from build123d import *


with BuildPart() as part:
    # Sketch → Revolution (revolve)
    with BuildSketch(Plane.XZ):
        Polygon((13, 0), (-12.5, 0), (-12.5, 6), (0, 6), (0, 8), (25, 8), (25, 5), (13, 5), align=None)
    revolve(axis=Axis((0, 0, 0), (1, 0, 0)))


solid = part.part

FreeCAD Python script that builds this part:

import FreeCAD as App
import Part
import Sketcher


def add_polygon(sketch, points):
    """Adds a closed chain of lines whose ends are joined by coincident constraints."""
    first, n = sketch.GeometryCount, len(points)
    for a, b in zip(points, points[1:] + points[:1]):
        sketch.addGeometry(Part.LineSegment(App.Vector(*a, 0), App.Vector(*b, 0)), False)
    for i in range(n):
        sketch.addConstraint(Sketcher.Constraint("Coincident", first + i, 2, first + (i + 1) % n, 1))

doc = App.newDocument("Part")
body = doc.addObject("PartDesign::Body", "Body")

# Sketch on XZ plane
sketch1 = doc.addObject("Sketcher::SketchObject", "Sketch")
body.addObject(sketch1)
sketch1.AttachmentSupport = (doc.XZ_Plane, [""])
sketch1.MapMode = "FlatFace"
add_polygon(sketch1, [(-12.5, 0), (13, 0), (13, 5), (25, 5), (25, 8), (0, 8), (0, 6), (-12.5, 6)])  # lines 0-7
sketch1.addConstraint([
    Sketcher.Constraint("Horizontal", 0),
    Sketcher.Constraint("Vertical", 1),
    Sketcher.Constraint("Horizontal", 2),
    Sketcher.Constraint("Vertical", 3),
    Sketcher.Constraint("Horizontal", 4),
    Sketcher.Constraint("Vertical", 5),
    Sketcher.Constraint("Horizontal", 6),
    Sketcher.Constraint("Vertical", 7),
    Sketcher.Constraint("PointOnObject", 0, 2, -1),
    Sketcher.Constraint("PointOnObject", 4, 2, -2),
    Sketcher.Constraint("DistanceX", 2, 1, 2, 2, 12.0),
    Sketcher.Constraint("DistanceX", 4, 2, 4, 1, 25.0),
    Sketcher.Constraint("DistanceY", 1, 1, 1, 2, 5.0),
    Sketcher.Constraint("DistanceY", 3, 1, 3, 2, 3.0),
    Sketcher.Constraint("DistanceY", 5, 2, 5, 1, 2.0),
    Sketcher.Constraint("DistanceX", 0, 1, 0, 2, 25.5),
])
revolution = doc.addObject("PartDesign::Revolution", "Revolution")
body.addObject(revolution)
revolution.Profile = sketch1
revolution.ReferenceAxis = (sketch1, ["H_Axis"])
revolution.Angle = 360

doc.recompute()
